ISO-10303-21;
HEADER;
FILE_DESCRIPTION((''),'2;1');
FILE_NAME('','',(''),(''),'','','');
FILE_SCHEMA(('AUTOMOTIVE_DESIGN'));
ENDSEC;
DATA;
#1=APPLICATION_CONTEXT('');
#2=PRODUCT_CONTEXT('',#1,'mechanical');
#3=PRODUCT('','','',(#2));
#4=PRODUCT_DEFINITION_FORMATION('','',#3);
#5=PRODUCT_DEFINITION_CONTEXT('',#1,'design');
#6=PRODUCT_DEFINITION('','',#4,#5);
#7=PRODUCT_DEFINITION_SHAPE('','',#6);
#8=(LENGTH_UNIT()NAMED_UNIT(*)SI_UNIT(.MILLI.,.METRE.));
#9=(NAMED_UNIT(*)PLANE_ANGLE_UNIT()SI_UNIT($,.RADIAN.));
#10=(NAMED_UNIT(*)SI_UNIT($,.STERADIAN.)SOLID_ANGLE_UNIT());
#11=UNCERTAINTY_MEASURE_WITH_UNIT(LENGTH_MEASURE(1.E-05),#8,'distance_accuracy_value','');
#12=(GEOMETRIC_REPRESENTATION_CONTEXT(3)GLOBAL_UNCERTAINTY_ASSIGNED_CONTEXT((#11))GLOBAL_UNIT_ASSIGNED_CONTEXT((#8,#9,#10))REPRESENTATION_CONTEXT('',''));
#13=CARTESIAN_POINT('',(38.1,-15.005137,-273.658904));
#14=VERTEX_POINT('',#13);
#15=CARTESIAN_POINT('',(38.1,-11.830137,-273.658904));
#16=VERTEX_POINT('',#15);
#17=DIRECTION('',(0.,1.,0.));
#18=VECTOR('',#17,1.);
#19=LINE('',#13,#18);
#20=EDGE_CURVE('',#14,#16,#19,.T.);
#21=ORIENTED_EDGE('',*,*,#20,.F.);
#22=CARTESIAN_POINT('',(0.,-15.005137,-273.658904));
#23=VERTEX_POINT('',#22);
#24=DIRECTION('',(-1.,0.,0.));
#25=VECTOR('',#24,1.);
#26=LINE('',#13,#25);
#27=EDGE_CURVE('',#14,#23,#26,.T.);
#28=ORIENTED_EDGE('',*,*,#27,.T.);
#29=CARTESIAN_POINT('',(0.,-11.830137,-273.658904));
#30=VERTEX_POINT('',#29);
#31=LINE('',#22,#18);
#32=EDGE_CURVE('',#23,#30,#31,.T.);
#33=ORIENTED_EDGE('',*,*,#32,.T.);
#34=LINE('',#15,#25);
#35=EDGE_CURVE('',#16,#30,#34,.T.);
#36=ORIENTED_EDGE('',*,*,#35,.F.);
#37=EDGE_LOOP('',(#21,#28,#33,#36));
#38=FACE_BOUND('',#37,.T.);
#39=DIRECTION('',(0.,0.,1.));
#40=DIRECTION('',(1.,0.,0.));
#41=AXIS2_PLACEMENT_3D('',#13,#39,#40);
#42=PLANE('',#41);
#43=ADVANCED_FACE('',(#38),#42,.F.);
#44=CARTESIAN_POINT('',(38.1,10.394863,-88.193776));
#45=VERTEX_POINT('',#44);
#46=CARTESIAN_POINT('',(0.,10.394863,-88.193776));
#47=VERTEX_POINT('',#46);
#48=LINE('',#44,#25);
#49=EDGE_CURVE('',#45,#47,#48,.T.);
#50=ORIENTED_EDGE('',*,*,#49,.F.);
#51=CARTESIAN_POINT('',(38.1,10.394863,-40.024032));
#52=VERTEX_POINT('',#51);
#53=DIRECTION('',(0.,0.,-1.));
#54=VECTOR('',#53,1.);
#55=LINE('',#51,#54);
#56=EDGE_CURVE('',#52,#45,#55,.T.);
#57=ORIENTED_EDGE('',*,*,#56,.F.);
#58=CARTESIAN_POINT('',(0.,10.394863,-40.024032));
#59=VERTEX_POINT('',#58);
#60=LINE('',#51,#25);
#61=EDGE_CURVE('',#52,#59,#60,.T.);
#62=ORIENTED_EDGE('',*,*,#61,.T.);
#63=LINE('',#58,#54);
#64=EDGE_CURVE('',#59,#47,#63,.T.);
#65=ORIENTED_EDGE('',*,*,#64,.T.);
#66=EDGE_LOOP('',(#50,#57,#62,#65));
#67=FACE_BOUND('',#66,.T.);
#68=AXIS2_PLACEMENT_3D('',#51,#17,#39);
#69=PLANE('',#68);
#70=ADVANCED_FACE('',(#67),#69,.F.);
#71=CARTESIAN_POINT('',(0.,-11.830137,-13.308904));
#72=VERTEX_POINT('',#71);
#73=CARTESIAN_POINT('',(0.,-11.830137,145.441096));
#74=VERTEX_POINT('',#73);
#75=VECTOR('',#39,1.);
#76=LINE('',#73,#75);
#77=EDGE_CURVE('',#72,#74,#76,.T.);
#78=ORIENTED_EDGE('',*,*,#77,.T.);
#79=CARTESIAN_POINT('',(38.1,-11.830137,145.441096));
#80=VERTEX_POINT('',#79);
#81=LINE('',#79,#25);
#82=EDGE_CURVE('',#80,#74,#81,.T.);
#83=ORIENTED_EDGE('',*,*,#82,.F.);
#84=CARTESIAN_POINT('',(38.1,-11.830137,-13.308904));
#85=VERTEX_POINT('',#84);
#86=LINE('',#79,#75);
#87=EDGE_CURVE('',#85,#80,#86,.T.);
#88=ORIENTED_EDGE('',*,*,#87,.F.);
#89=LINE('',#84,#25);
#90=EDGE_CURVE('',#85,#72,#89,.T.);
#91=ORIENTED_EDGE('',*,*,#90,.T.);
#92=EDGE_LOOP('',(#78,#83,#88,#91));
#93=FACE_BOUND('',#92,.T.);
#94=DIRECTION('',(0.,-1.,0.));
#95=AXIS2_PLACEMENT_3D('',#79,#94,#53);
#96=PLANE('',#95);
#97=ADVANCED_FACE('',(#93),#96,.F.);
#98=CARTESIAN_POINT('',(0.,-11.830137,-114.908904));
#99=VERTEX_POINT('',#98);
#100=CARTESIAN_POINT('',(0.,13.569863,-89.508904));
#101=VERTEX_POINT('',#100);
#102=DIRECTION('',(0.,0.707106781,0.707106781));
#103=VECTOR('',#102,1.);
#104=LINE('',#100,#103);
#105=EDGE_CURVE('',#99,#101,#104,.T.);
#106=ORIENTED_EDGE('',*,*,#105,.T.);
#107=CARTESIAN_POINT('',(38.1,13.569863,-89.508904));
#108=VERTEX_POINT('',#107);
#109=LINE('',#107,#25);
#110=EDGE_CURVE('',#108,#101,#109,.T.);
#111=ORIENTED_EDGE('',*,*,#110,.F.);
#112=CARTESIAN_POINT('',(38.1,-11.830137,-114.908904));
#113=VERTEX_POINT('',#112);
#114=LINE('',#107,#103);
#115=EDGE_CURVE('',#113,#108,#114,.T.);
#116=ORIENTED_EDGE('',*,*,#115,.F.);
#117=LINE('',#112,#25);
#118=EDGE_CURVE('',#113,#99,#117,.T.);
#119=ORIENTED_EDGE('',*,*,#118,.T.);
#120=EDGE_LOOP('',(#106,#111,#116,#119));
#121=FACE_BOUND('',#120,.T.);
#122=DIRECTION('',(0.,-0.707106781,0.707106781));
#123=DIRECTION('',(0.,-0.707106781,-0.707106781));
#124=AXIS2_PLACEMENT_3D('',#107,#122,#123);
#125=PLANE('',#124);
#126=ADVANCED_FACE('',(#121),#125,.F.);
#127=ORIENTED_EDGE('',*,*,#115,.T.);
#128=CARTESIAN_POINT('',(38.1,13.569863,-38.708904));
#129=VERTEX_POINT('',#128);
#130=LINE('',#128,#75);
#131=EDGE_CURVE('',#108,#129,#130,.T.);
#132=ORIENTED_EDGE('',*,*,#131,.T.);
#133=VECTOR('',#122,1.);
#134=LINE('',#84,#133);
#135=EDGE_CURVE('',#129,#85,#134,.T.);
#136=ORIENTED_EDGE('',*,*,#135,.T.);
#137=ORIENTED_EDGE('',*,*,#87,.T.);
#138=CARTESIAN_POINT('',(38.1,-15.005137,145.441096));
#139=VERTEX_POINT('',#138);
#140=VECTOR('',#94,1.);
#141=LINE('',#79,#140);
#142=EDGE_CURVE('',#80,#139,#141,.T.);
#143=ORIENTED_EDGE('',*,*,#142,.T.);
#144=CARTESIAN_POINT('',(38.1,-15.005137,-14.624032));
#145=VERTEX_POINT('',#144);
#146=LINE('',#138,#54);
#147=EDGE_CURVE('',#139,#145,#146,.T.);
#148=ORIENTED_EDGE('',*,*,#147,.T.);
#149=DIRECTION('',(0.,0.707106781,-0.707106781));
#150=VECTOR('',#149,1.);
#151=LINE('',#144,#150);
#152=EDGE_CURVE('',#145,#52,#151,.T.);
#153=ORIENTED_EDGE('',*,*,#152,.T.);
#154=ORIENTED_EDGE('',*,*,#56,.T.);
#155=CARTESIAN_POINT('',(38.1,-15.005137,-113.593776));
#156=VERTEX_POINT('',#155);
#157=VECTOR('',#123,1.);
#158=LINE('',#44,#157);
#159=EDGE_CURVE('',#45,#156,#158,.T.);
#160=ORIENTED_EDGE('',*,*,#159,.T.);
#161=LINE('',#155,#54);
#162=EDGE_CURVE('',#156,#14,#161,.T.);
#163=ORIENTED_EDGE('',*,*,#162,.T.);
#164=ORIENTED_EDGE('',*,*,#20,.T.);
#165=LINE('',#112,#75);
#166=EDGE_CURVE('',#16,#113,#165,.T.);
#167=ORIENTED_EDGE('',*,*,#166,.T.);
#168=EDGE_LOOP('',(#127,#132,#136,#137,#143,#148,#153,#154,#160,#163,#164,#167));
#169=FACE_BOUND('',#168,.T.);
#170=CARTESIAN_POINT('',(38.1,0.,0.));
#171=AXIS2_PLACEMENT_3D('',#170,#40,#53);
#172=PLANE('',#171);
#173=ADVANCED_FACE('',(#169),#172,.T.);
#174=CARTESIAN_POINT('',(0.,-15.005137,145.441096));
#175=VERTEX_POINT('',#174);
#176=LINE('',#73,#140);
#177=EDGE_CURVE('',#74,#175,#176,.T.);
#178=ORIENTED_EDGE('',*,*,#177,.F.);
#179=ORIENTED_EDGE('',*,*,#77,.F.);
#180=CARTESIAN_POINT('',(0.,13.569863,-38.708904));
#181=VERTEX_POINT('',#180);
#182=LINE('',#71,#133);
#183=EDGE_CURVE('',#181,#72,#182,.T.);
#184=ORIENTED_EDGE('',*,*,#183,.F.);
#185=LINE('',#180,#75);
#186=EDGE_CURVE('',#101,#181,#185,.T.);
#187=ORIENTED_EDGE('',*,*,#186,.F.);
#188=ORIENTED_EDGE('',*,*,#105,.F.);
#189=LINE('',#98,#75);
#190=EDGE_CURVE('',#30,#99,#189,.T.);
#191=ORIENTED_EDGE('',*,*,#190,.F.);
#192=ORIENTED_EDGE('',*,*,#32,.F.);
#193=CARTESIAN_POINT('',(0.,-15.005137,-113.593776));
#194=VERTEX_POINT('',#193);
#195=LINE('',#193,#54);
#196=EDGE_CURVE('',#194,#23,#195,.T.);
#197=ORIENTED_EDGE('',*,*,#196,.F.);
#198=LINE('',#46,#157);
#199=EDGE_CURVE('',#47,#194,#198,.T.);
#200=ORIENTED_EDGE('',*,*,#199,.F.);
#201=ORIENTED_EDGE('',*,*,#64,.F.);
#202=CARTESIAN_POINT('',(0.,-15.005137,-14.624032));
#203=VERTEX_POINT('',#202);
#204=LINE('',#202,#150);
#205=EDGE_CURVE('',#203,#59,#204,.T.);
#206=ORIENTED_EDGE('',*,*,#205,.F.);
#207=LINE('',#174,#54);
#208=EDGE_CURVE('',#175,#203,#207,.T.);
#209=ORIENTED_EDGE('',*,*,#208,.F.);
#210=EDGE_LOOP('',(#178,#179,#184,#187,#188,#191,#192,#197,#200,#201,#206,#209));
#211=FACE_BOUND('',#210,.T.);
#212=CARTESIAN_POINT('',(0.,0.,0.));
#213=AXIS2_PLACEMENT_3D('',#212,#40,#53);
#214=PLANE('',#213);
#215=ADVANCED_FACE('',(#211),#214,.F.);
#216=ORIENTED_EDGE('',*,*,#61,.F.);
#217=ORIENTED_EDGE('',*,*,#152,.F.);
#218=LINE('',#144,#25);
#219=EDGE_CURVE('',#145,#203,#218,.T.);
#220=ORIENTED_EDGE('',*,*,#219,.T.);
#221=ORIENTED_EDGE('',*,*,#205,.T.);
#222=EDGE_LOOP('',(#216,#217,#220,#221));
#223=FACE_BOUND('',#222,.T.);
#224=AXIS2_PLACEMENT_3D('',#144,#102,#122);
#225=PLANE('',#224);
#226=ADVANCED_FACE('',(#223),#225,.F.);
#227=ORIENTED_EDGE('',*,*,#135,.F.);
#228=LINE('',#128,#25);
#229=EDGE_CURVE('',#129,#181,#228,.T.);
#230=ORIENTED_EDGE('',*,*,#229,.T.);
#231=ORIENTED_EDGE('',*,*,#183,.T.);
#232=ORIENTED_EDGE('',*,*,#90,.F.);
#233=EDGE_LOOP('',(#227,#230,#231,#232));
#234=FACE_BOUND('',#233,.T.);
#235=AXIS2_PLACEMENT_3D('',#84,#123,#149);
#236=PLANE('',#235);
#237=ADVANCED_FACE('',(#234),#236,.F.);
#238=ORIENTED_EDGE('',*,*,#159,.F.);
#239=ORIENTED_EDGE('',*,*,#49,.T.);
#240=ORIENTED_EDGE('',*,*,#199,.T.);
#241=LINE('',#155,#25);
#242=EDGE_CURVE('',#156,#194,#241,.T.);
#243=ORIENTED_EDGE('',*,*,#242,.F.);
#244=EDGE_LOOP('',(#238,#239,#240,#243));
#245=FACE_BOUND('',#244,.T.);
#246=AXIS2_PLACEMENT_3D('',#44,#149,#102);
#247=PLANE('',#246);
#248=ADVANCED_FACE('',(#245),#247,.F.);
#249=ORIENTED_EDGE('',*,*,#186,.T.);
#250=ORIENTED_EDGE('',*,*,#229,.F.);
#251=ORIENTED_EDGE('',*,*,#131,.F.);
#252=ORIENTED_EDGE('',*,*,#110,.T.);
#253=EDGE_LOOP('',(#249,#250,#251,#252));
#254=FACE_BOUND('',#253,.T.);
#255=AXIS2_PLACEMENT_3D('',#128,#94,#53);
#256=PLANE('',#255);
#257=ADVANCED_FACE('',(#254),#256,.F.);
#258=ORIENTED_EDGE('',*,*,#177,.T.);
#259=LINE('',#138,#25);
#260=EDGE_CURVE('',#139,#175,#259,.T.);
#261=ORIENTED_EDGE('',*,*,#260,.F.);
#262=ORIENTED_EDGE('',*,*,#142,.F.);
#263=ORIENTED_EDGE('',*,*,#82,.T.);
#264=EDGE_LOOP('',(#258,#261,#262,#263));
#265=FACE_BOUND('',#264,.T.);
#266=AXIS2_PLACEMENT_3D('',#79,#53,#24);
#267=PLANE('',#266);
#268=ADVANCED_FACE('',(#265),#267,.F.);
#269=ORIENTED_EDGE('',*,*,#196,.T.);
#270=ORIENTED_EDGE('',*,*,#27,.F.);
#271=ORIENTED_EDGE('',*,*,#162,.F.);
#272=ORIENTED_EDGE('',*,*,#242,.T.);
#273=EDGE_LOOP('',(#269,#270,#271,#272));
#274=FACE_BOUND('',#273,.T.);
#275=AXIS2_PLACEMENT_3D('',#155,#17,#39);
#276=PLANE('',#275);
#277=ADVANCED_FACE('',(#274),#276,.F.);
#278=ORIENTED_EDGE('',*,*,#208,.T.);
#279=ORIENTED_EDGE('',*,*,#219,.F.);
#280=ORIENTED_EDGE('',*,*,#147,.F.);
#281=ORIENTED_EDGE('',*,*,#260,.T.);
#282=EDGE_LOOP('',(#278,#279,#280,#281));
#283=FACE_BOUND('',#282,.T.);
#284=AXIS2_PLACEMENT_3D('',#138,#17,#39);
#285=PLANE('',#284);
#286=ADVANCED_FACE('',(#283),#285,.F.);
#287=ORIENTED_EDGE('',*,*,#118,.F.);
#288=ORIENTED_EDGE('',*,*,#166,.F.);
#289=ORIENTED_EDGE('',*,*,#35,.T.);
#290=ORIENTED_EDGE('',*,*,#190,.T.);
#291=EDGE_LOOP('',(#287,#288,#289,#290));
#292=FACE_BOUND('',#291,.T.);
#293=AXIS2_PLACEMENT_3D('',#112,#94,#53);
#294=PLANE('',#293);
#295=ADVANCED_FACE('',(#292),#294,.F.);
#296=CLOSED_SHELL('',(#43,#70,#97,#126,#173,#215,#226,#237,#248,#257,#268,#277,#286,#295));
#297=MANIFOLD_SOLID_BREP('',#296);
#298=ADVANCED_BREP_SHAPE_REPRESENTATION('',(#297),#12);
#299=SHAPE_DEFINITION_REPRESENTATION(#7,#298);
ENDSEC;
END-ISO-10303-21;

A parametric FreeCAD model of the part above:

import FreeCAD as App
import Part
import Sketcher

V = App.Vector
Q = App.Units.Quantity

doc = App.newDocument("Part")
body = doc.addObject("PartDesign::Body", "Body")

# Sketch on YZ plane
sketch1 = doc.addObject("Sketcher::SketchObject", "Sketch")
body.addObject(sketch1)
sketch1.AttachmentSupport = (doc.YZ_Plane, [""])
sketch1.MapMode = "FlatFace"
sketch1.addGeometry(Part.LineSegment(V(-11.8, -13.3, 0), V(-11.8, 145.4, 0)), False)
sketch1.addGeometry(Part.LineSegment(V(-11.8, 145.4, 0), V(-15, 145.4, 0)), False)
sketch1.addGeometry(Part.LineSegment(V(-15, 145.4, 0), V(-15, -14.6, 0)), False)
sketch1.addGeometry(Part.LineSegment(V(-15, -14.6, 0), V(10.4, -40, 0)), False)
sketch1.addGeometry(Part.LineSegment(V(10.4, -40, 0), V(10.4, -88.2, 0)), False)
sketch1.addGeometry(Part.LineSegment(V(10.4, -88.2, 0), V(-15, -113.6, 0)), False)
sketch1.addGeometry(Part.LineSegment(V(-15, -113.6, 0), V(-15, -273.7, 0)), False)
sketch1.addGeometry(Part.LineSegment(V(-15, -273.7, 0), V(-11.8, -273.7, 0)), False)
sketch1.addGeometry(Part.LineSegment(V(-11.8, -273.7, 0), V(-11.8, -114.9, 0)), False)
sketch1.addGeometry(Part.LineSegment(V(-11.8, -114.9, 0), V(13.6, -89.5, 0)), False)
sketch1.addGeometry(Part.LineSegment(V(13.6, -89.5, 0), V(13.6, -38.7, 0)), False)
sketch1.addGeometry(Part.LineSegment(V(13.6, -38.7, 0), V(-11.8, -13.3, 0)), False)
sketch1.addConstraint(Sketcher.Constraint("Coincident", 0, 2, 1, 1))
sketch1.addConstraint(Sketcher.Constraint("Coincident", 1, 2, 2, 1))
sketch1.addConstraint(Sketcher.Constraint("Coincident", 2, 2, 3, 1))
sketch1.addConstraint(Sketcher.Constraint("Coincident", 3, 2, 4, 1))
sketch1.addConstraint(Sketcher.Constraint("Coincident", 4, 2, 5, 1))
sketch1.addConstraint(Sketcher.Constraint("Coincident", 5, 2, 6, 1))
sketch1.addConstraint(Sketcher.Constraint("Coincident", 6, 2, 7, 1))
sketch1.addConstraint(Sketcher.Constraint("Coincident", 7, 2, 8, 1))
sketch1.addConstraint(Sketcher.Constraint("Coincident", 8, 2, 9, 1))
sketch1.addConstraint(Sketcher.Constraint("Coincident", 9, 2, 10, 1))
sketch1.addConstraint(Sketcher.Constraint("Coincident", 10, 2, 11, 1))
sketch1.addConstraint(Sketcher.Constraint("Coincident", 11, 2, 0, 1))
sketch1.addConstraint(Sketcher.Constraint("Vertical", 0))
sketch1.addConstraint(Sketcher.Constraint("Horizontal", 1))
sketch1.addConstraint(Sketcher.Constraint("Vertical", 2))
sketch1.addConstraint(Sketcher.Constraint("Vertical", 4))
sketch1.addConstraint(Sketcher.Constraint("Vertical", 6))
sketch1.addConstraint(Sketcher.Constraint("Horizontal", 7))
sketch1.addConstraint(Sketcher.Constraint("Vertical", 8))
sketch1.addConstraint(Sketcher.Constraint("Vertical", 10))
sketch1.addConstraint(Sketcher.Constraint("Perpendicular", 3, 5))
sketch1.addConstraint(Sketcher.Constraint("Parallel", 5, 9))
sketch1.addConstraint(Sketcher.Constraint("Perpendicular", 9, 11))
sketch1.addConstraint(Sketcher.Constraint("Vertical", 2, 2, 5, 2))
sketch1.addConstraint(Sketcher.Constraint("Vertical", 0, 2, 7, 2))
sketch1.addConstraint(Sketcher.Constraint("Equal", 2, 6))
sketch1.addConstraint(Sketcher.Constraint("Equal", 0, 8))
sketch1.addConstraint(Sketcher.Constraint("Equal", 3, 5))
sketch1.addConstraint(Sketcher.Constraint("Equal", 5, 9))
sketch1.addConstraint(Sketcher.Constraint("DistanceY", 10, 1, 10, 2, Q("2 in")))
sketch1.addConstraint(Sketcher.Constraint("DistanceX", 2, 2, 3, 2, Q("1 in")))
sketch1.addConstraint(Sketcher.Constraint("DistanceY", 0, 1, 0, 2, Q("6.25 in")))
sketch1.addConstraint(Sketcher.Constraint("DistanceX", 1, 2, 1, 1, Q("0.125 in")))
sketch1.addConstraint(Sketcher.Constraint("DistanceY", 2, 2, 2, 1, Q("160.065128 mm")))
sketch1.addConstraint(Sketcher.Constraint("DistanceX", 0, 2, -1, 1, Q("11.830137 mm")))
sketch1.addConstraint(Sketcher.Constraint("DistanceY", -1, 1, 0, 2, Q("145.441096 mm")))
pad1 = doc.addObject("PartDesign::Pad", "Pad")
body.addObject(pad1)
pad1.Profile = sketch1
pad1.Length = Q("1.5 in")

doc.recompute()
